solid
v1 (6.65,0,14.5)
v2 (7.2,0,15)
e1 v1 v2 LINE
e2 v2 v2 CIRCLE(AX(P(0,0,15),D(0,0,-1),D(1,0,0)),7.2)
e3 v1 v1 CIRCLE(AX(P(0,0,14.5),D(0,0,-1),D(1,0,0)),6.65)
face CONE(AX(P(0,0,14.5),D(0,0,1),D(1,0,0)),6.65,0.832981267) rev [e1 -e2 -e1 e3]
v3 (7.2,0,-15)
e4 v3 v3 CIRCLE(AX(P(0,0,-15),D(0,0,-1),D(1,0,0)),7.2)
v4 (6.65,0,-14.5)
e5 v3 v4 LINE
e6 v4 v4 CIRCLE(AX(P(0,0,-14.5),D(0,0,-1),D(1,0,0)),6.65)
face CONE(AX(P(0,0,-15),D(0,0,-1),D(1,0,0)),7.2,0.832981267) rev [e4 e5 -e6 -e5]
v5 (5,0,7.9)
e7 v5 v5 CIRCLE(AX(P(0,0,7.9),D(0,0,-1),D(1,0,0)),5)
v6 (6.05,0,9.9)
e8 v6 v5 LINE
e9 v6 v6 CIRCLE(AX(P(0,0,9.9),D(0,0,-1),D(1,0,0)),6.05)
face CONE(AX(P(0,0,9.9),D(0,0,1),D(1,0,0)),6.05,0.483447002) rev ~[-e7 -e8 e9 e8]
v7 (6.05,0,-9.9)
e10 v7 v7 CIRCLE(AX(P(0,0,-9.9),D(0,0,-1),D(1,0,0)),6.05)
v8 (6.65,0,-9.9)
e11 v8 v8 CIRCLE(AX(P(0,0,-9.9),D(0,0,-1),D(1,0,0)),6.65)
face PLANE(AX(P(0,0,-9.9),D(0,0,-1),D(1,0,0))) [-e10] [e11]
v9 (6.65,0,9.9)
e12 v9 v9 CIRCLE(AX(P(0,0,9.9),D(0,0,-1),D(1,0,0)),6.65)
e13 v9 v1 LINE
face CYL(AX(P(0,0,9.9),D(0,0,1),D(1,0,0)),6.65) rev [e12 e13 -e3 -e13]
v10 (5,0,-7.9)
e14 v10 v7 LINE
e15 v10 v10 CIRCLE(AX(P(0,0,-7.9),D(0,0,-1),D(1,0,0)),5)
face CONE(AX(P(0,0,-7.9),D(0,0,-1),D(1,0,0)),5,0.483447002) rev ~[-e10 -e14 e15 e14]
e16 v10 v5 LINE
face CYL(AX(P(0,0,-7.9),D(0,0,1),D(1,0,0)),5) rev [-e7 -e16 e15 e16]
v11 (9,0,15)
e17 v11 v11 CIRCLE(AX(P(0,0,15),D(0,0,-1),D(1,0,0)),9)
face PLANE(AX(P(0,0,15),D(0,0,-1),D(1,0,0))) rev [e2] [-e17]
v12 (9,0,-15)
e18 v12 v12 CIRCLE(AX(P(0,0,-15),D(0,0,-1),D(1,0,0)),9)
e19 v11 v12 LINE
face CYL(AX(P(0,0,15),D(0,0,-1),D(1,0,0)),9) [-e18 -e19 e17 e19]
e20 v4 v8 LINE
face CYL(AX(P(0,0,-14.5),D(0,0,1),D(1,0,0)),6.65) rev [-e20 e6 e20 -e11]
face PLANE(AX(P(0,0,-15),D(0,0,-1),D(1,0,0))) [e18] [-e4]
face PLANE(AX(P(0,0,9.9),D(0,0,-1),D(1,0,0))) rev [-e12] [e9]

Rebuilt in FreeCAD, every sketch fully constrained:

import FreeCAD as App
import Part
import Sketcher

V = App.Vector
Q = App.Units.Quantity


def add_polygon(sketch, points):
    """Adds a closed chain of lines whose ends are joined by coincident constraints."""
    first, n = sketch.GeometryCount, len(points)
    for a, b in zip(points, points[1:] + points[:1]):
        sketch.addGeometry(Part.LineSegment(App.Vector(*a, 0), App.Vector(*b, 0)), False)
    for i in range(n):
        sketch.addConstraint(Sketcher.Constraint("Coincident", first + i, 2, first + (i + 1) % n, 1))

doc = App.newDocument("Part")
body = doc.addObject("PartDesign::Body", "Body")

# Sketch on XZ plane
sketch1 = doc.addObject("Sketcher::SketchObject", "Sketch")
body.addObject(sketch1)
sketch1.AttachmentSupport = (doc.XZ_Plane, [""])
sketch1.MapMode = "FlatFace"
add_polygon(sketch1, [(9, -15), (9, 15), (7.2, 15), (6.65, 14.5), (6.65, 9.9), (6.05, 9.9), (5, 7.9), (5, -7.9), (6.05, -9.9), (6.65, -9.9), (6.65, -14.5), (7.2, -15)])  # lines 0-11
sketch1.addConstraint([
    Sketcher.Constraint("Vertical", 0),
    Sketcher.Constraint("Horizontal", 1),
    Sketcher.Constraint("Vertical", 3),
    Sketcher.Constraint("Horizontal", 4),
    Sketcher.Constraint("Vertical", 6),
    Sketcher.Constraint("Horizontal", 8),
    Sketcher.Constraint("Vertical", 9),
    Sketcher.Constraint("Horizontal", 11),
    Sketcher.Constraint("Symmetric", 4, 2, 7, 2, -1),
    Sketcher.Constraint("Symmetric", 2, 2, 9, 2, -1),
    Sketcher.Constraint("Symmetric", 1, 2, 10, 2, -1),
    Sketcher.Constraint("Equal", 5, 7),
    Sketcher.Constraint("DistanceX", -1, 1, 0, 2, Q("9 mm")),
    Sketcher.Constraint("DistanceY", 0, 1, 0, 2, Q("30 mm")),
    Sketcher.Constraint("DistanceX", -1, 1, 2, 2, Q("6.65 mm")),
    Sketcher.Constraint("DistanceX", 1, 2, 1, 1, Q("1.8 mm")),
    Sketcher.Constraint("DistanceX", 4, 2, 4, 1, Q("0.6 mm")),
    Sketcher.Constraint("DistanceY", 3, 2, 3, 1, Q("4.6 mm")),
    Sketcher.Constraint("DistanceY", 6, 2, 6, 1, Q("15.8 mm")),
    Sketcher.Constraint("DistanceX", -1, 1, 5, 2, Q("5 mm")),
    Sketcher.Constraint("Angle", 5, Q("-117.6995 deg")),
])
revolution = doc.addObject("PartDesign::Revolution", "Revolution")
body.addObject(revolution)
revolution.Profile = sketch1
revolution.ReferenceAxis = (sketch1, ["V_Axis"])
revolution.Angle = 360

doc.recompute()
